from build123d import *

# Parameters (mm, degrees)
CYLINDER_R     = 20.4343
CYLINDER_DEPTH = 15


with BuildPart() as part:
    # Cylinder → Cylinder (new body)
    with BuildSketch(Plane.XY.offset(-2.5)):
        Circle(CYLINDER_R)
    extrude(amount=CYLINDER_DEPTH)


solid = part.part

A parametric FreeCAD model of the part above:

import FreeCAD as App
import Part
import Sketcher

V = App.Vector
Q = App.Units.Quantity

doc = App.newDocument("Part")
body = doc.addObject("PartDesign::Body", "Body")

# Sketch on XY plane
sketch1 = body.newObject("Sketcher::SketchObject", "Sketch")
sketch1.AttachmentSupport = (doc.getObject("XY_Plane"), [""])
sketch1.MapMode = "FlatFace"
sketch1.AttachmentOffset = App.Placement(V(0, 0, -2.5), App.Rotation())
sketch1.addGeometry(Part.Circle(V(0, 0, 0), V(0, 0, 1), 20), False)
sketch1.addConstraint([
    Sketcher.Constraint("Coincident", 0, 3, -1, 1),
    Sketcher.Constraint("Diameter", 0, Q("40.8686 mm")),
])
pad1 = body.newObject("PartDesign::Pad", "Pad")
pad1.Profile = sketch1
pad1.Length = 15

doc.recompute()
